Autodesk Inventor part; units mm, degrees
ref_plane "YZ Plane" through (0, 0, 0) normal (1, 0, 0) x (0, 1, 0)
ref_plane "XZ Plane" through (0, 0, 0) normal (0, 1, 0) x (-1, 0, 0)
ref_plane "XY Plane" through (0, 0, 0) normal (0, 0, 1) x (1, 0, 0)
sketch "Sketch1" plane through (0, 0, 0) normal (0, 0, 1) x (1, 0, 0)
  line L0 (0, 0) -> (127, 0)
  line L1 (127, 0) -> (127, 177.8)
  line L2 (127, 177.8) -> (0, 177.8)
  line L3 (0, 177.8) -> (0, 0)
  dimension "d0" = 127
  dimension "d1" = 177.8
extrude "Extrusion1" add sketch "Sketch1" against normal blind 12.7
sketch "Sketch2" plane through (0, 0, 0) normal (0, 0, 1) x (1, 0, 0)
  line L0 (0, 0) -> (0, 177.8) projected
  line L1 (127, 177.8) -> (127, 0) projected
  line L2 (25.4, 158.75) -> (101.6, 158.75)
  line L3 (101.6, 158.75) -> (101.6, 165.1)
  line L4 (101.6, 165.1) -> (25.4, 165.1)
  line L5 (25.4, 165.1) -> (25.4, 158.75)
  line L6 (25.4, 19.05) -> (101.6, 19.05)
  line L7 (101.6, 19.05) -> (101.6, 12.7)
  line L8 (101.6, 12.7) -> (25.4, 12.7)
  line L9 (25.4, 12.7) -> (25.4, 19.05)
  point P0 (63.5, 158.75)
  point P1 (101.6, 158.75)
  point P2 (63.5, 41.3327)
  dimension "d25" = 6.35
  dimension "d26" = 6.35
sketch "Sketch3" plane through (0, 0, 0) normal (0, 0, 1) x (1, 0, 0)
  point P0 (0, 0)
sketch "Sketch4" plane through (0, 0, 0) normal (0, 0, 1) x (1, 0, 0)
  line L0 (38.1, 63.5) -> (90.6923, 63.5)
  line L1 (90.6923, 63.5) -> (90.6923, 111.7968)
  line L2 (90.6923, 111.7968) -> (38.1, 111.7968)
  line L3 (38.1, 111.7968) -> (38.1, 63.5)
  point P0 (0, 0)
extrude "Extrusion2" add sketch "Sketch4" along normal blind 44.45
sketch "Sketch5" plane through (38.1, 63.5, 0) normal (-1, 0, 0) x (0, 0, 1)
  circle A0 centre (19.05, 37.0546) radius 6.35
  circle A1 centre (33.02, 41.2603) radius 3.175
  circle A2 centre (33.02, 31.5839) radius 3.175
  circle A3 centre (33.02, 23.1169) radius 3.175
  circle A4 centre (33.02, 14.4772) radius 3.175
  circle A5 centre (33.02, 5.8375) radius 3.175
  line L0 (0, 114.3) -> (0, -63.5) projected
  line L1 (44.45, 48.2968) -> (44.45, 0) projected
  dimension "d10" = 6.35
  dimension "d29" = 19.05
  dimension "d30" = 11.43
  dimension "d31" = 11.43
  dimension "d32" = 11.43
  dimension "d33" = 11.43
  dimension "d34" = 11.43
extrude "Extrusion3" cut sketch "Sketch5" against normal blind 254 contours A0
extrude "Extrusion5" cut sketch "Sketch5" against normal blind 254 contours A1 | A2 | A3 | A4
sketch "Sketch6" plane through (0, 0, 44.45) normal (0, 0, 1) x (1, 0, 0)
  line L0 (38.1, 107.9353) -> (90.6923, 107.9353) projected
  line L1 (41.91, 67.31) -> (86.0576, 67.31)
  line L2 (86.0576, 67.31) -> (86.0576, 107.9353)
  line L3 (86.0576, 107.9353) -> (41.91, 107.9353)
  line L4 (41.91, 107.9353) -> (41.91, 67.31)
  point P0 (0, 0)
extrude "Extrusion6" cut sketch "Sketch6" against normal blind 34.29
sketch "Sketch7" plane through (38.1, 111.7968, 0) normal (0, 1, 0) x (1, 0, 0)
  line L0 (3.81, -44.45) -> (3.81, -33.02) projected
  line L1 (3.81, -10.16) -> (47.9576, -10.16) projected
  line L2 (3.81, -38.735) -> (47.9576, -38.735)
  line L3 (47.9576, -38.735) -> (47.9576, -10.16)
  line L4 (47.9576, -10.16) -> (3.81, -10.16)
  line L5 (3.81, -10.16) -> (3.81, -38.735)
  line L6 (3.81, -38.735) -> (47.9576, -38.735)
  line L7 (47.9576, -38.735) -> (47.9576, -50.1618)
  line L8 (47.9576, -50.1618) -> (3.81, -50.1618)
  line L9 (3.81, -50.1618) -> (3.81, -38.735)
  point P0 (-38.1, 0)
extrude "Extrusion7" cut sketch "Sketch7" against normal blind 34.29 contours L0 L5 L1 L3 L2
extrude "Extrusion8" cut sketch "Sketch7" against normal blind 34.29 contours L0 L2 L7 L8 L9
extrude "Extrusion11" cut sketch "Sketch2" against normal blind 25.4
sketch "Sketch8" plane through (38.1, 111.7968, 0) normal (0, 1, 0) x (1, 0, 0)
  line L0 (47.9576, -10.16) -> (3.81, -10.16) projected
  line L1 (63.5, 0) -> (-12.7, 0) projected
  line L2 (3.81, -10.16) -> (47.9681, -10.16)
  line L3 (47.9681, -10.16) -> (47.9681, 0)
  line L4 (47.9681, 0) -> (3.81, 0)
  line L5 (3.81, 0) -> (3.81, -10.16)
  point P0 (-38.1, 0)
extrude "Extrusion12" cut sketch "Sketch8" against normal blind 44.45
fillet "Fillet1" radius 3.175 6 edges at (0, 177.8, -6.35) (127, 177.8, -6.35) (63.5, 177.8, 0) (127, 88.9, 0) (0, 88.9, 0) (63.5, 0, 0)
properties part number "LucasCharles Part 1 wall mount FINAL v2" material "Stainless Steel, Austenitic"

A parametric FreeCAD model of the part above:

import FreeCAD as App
import Part
import Sketcher

V = App.Vector
Q = App.Units.Quantity


def edges_at(feature, points):
    """Names of the edges that pass closest to the given points."""
    edges = feature.Shape.Edges
    near = lambda p: min(range(len(edges)), key=lambda i: edges[i].distToShape(Part.Vertex(*p))[0])
    return sorted({f"Edge{near(p) + 1}" for p in points})


def add_polygon(sketch, points):
    """Adds a closed chain of lines whose ends are joined by coincident constraints."""
    first, n = sketch.GeometryCount, len(points)
    for a, b in zip(points, points[1:] + points[:1]):
        sketch.addGeometry(Part.LineSegment(App.Vector(*a, 0), App.Vector(*b, 0)), False)
    for i in range(n):
        sketch.addConstraint(Sketcher.Constraint("Coincident", first + i, 2, first + (i + 1) % n, 1))

doc = App.newDocument("Part")
body = doc.addObject("PartDesign::Body", "Body")

sketch1 = body.newObject("Sketcher::SketchObject", "Sketch")
sketch1.AttachmentSupport = (doc.getObject("XY_Plane"), [""])
sketch1.MapMode = "FlatFace"
add_polygon(sketch1, [(0, 177.8), (0, 0), (127, 0), (127, 177.8)])
sketch1.addConstraint([
    Sketcher.Constraint("Vertical", 0),
    Sketcher.Constraint("Horizontal", 1),
    Sketcher.Constraint("Vertical", 2),
    Sketcher.Constraint("Horizontal", 3),
    Sketcher.Constraint("Coincident", 0, 2, -1, 1),
    Sketcher.Constraint("DistanceX", 1, 1, 1, 2, Q("5 in")),
    Sketcher.Constraint("DistanceY", 0, 2, 0, 1, Q("7 in")),
])
pad1 = body.newObject("PartDesign::Pad", "Pad")
pad1.Profile = sketch1
pad1.Length = Q("0.5 in")
pad1.Reversed = True

sketch2 = body.newObject("Sketcher::SketchObject", "Sketch001")
sketch2.AttachmentSupport = (doc.getObject("XY_Plane"), [""])
sketch2.MapMode = "FlatFace"
add_polygon(sketch2, [(38.1, 111.7968), (38.1, 63.5), (90.6923, 63.5), (90.6923, 111.7968)])
sketch2.addConstraint([
    Sketcher.Constraint("Vertical", 0),
    Sketcher.Constraint("Horizontal", 1),
    Sketcher.Constraint("Vertical", 2),
    Sketcher.Constraint("Horizontal", 3),
    Sketcher.Constraint("DistanceX", -1, 1, 0, 2, Q("1.5 in")),
    Sketcher.Constraint("DistanceY", -1, 1, 0, 2, Q("2.5 in")),
    Sketcher.Constraint("DistanceX", 1, 1, 1, 2, Q("52.5923 mm")),
    Sketcher.Constraint("DistanceY", 0, 2, 0, 1, Q("48.2968 mm")),
])
pad2 = body.newObject("PartDesign::Pad", "Pad001")
pad2.Profile = sketch2
pad2.Length = Q("1.75 in")

sketch3 = body.newObject("Sketcher::SketchObject", "Sketch002")
sketch3.AttachmentSupport = (doc.getObject("YZ_Plane"), [""])
sketch3.MapMode = "FlatFace"
sketch3.AttachmentOffset = App.Placement(V(0, 0, 1.5 * 25.4), App.Rotation())
sketch3.addGeometry(Part.Circle(V(100.5546, 19.05, 0), V(0, 0, 1), 6.35), False)
sketch3.addConstraint([
    Sketcher.Constraint("Diameter", 0, Q("0.5 in")),
    Sketcher.Constraint("DistanceY", -1, 1, 0, 3, Q("0.75 in")),
    Sketcher.Constraint("DistanceX", -1, 1, 0, 3, Q("100.5546 mm")),
])
pocket1 = body.newObject("PartDesign::Pocket", "Pocket")
pocket1.Profile = sketch3
pocket1.Length = Q("10 in")
pocket1.Reversed = True

sketch4 = body.newObject("Sketcher::SketchObject", "Sketch003")
sketch4.AttachmentSupport = (doc.getObject("YZ_Plane"), [""])
sketch4.MapMode = "FlatFace"
sketch4.AttachmentOffset = App.Placement(V(0, 0, 1.5 * 25.4), App.Rotation())
sketch4.addGeometry([
    Part.Circle(V(104.7603, 33.02, 0), V(0, 0, 1), 3.175),
    Part.Circle(V(95.0839, 33.02, 0), V(0, 0, 1), 3.175),
    Part.Circle(V(86.6169, 33.02, 0), V(0, 0, 1), 3.175),
    Part.Circle(V(77.9772, 33.02, 0), V(0, 0, 1), 3.175),
], False)
sketch4.addConstraint([
    Sketcher.Constraint("Equal", 0, 1),
    Sketcher.Constraint("Equal", 1, 2),
    Sketcher.Constraint("Equal", 2, 3),
    Sketcher.Constraint("Horizontal", 0, 3, 1, 3),
    Sketcher.Constraint("Horizontal", 1, 3, 2, 3),
    Sketcher.Constraint("Horizontal", 2, 3, 3, 3),
    Sketcher.Constraint("Diameter", 0, Q("0.25 in")),
    Sketcher.Constraint("DistanceY", -1, 1, 0, 3, Q("1.3 in")),
    Sketcher.Constraint("DistanceX", 2, 3, 0, 3, Q("0.7143 in")),
    Sketcher.Constraint("DistanceX", 3, 3, 1, 3, Q("0.6735 in")),
    Sketcher.Constraint("DistanceX", -1, 1, 0, 3, Q("104.7603 mm")),
    Sketcher.Constraint("DistanceX", -1, 1, 1, 3, Q("95.084 mm")),
])
pocket2 = body.newObject("PartDesign::Pocket", "Pocket001")
pocket2.Profile = sketch4
pocket2.Length = Q("10 in")
pocket2.Reversed = True

sketch5 = body.newObject("Sketcher::SketchObject", "Sketch004")
sketch5.AttachmentSupport = (doc.getObject("XY_Plane"), [""])
sketch5.MapMode = "FlatFace"
sketch5.AttachmentOffset = App.Placement(V(0, 0, 1.75 * 25.4), App.Rotation())
add_polygon(sketch5, [(86.0576, 107.9353), (41.91, 107.9353), (41.91, 67.31), (86.0576, 67.31)])
sketch5.addConstraint([
    Sketcher.Constraint("Horizontal", 0),
    Sketcher.Constraint("Vertical", 1),
    Sketcher.Constraint("Horizontal", 2),
    Sketcher.Constraint("Vertical", 3),
    Sketcher.Constraint("DistanceX", -1, 1, 0, 2, Q("1.65 in")),
    Sketcher.Constraint("DistanceY", -1, 1, 1, 2, Q("2.65 in")),
    Sketcher.Constraint("DistanceX", 0, 2, 0, 1, Q("1.7381 in")),
    Sketcher.Constraint("DistanceY", 1, 2, 1, 1, Q("40.6253 mm")),
])
pocket3 = body.newObject("PartDesign::Pocket", "Pocket002")
pocket3.Profile = sketch5
pocket3.Length = Q("1.35 in")

sketch6 = body.newObject("Sketcher::SketchObject", "Sketch005")
sketch6.AttachmentSupport = (doc.getObject("XZ_Plane"), [""])
sketch6.MapMode = "FlatFace"
sketch6.AttachmentOffset = App.Placement(V(0, 0, -111.7968), App.Rotation())
add_polygon(sketch6, [(41.91, 10.16), (41.91, 38.735), (86.0576, 38.735), (86.0576, 10.16)])
sketch6.addConstraint([
    Sketcher.Constraint("Vertical", 0),
    Sketcher.Constraint("Horizontal", 1),
    Sketcher.Constraint("Vertical", 2),
    Sketcher.Constraint("Horizontal", 3),
    Sketcher.Constraint("DistanceY", -1, 1, 2, 2, Q("0.4 in")),
    Sketcher.Constraint("DistanceY", 0, 1, 0, 2, Q("1.125 in")),
    Sketcher.Constraint("DistanceX", -1, 1, 0, 2, Q("1.65 in")),
    Sketcher.Constraint("DistanceX", 1, 1, 1, 2, Q("1.7381 in")),
])
pocket4 = body.newObject("PartDesign::Pocket", "Pocket003")
pocket4.Profile = sketch6
pocket4.Length = Q("1.35 in")
pocket4.Reversed = True

sketch7 = body.newObject("Sketcher::SketchObject", "Sketch006")
sketch7.AttachmentSupport = (doc.getObject("XZ_Plane"), [""])
sketch7.MapMode = "FlatFace"
sketch7.AttachmentOffset = App.Placement(V(0, 0, -111.7968), App.Rotation())
add_polygon(sketch7, [(41.91, 38.735), (41.91, 50.1618), (86.0576, 50.1618), (86.0576, 38.735)])
sketch7.addConstraint([
    Sketcher.Constraint("Vertical", 0),
    Sketcher.Constraint("Horizontal", 1),
    Sketcher.Constraint("Vertical", 2),
    Sketcher.Constraint("Horizontal", 3),
    Sketcher.Constraint("DistanceX", -1, 1, 0, 2, Q("1.65 in")),
    Sketcher.Constraint("DistanceX", 1, 1, 1, 2, Q("1.7381 in")),
    Sketcher.Constraint("DistanceY", -1, 1, 2, 2, Q("1.525 in")),
    Sketcher.Constraint("DistanceY", 0, 1, 0, 2, Q("11.4268 mm")),
])
pocket5 = body.newObject("PartDesign::Pocket", "Pocket004")
pocket5.Profile = sketch7
pocket5.Length = Q("1.35 in")
pocket5.Reversed = True

sketch8 = body.newObject("Sketcher::SketchObject", "Sketch007")
sketch8.AttachmentSupport = (doc.getObject("XY_Plane"), [""])
sketch8.MapMode = "FlatFace"
add_polygon(sketch8, [(25.4, 165.1), (25.4, 158.75), (101.6, 158.75), (101.6, 165.1)])
add_polygon(sketch8, [(101.6, 19.05), (25.4, 19.05), (25.4, 12.7), (101.6, 12.7)])
sketch8.addConstraint([
    Sketcher.Constraint("Vertical", 0),
    Sketcher.Constraint("Horizontal", 1),
    Sketcher.Constraint("Vertical", 2),
    Sketcher.Constraint("Horizontal", 3),
    Sketcher.Constraint("Horizontal", 4),
    Sketcher.Constraint("Vertical", 5),
    Sketcher.Constraint("Horizontal", 6),
    Sketcher.Constraint("Vertical", 7),
    Sketcher.Constraint("Vertical", 3, 2, 4, 2),
    Sketcher.Constraint("Vertical", 2, 2, 6, 2),
    Sketcher.Constraint("Equal", 2, 5),
    Sketcher.Constraint("DistanceY", 0, 2, 0, 1, Q("0.25 in")),
    Sketcher.Constraint("DistanceX", 1, 1, 1, 2, Q("3 in")),
    Sketcher.Constraint("DistanceX", -1, 1, 0, 2, Q("1 in")),
    Sketcher.Constraint("DistanceY", 5, 2, 3, 2, Q("6 in")),
    Sketcher.Constraint("DistanceY", -1, 1, 2, 2, Q("6.5 in")),
])
pocket6 = body.newObject("PartDesign::Pocket", "Pocket005")
pocket6.Profile = sketch8
pocket6.Length = Q("1 in")

sketch9 = body.newObject("Sketcher::SketchObject", "Sketch008")
sketch9.AttachmentSupport = (doc.getObject("XZ_Plane"), [""])
sketch9.MapMode = "FlatFace"
sketch9.AttachmentOffset = App.Placement(V(0, 0, -111.7968), App.Rotation())
add_polygon(sketch9, [(41.91, 10.16), (86.0681, 10.16), (86.0681, 0), (41.91, 0)])
sketch9.addConstraint([
    Sketcher.Constraint("Horizontal", 0),
    Sketcher.Constraint("Vertical", 1),
    Sketcher.Constraint("Horizontal", 2),
    Sketcher.Constraint("Vertical", 3),
    Sketcher.Constraint("PointOnObject", 1, 2, -1),
    Sketcher.Constraint("DistanceY", 1, 2, 1, 1, Q("0.4 in")),
    Sketcher.Constraint("DistanceX", -1, 1, 2, 2, Q("1.65 in")),
    Sketcher.Constraint("DistanceX", 0, 1, 0, 2, Q("1.7385 in")),
])
pocket7 = body.newObject("PartDesign::Pocket", "Pocket006")
pocket7.Profile = sketch9
pocket7.Length = Q("1.75 in")
pocket7.Reversed = True
doc.recompute()

fillet = body.newObject("PartDesign::Fillet", "Fillet")
fillet.Base = (pocket7, edges_at(pocket7, [
    (0, 177.8, -6.35),
    (127, 177.8, -6.35),
    (63.5, 177.8, 0),
    (127, 88.9, 0),
    (0, 88.9, 0),
    (63.5, 0, 0),
]))
fillet.Radius = Q("0.125 in")

doc.recompute()
